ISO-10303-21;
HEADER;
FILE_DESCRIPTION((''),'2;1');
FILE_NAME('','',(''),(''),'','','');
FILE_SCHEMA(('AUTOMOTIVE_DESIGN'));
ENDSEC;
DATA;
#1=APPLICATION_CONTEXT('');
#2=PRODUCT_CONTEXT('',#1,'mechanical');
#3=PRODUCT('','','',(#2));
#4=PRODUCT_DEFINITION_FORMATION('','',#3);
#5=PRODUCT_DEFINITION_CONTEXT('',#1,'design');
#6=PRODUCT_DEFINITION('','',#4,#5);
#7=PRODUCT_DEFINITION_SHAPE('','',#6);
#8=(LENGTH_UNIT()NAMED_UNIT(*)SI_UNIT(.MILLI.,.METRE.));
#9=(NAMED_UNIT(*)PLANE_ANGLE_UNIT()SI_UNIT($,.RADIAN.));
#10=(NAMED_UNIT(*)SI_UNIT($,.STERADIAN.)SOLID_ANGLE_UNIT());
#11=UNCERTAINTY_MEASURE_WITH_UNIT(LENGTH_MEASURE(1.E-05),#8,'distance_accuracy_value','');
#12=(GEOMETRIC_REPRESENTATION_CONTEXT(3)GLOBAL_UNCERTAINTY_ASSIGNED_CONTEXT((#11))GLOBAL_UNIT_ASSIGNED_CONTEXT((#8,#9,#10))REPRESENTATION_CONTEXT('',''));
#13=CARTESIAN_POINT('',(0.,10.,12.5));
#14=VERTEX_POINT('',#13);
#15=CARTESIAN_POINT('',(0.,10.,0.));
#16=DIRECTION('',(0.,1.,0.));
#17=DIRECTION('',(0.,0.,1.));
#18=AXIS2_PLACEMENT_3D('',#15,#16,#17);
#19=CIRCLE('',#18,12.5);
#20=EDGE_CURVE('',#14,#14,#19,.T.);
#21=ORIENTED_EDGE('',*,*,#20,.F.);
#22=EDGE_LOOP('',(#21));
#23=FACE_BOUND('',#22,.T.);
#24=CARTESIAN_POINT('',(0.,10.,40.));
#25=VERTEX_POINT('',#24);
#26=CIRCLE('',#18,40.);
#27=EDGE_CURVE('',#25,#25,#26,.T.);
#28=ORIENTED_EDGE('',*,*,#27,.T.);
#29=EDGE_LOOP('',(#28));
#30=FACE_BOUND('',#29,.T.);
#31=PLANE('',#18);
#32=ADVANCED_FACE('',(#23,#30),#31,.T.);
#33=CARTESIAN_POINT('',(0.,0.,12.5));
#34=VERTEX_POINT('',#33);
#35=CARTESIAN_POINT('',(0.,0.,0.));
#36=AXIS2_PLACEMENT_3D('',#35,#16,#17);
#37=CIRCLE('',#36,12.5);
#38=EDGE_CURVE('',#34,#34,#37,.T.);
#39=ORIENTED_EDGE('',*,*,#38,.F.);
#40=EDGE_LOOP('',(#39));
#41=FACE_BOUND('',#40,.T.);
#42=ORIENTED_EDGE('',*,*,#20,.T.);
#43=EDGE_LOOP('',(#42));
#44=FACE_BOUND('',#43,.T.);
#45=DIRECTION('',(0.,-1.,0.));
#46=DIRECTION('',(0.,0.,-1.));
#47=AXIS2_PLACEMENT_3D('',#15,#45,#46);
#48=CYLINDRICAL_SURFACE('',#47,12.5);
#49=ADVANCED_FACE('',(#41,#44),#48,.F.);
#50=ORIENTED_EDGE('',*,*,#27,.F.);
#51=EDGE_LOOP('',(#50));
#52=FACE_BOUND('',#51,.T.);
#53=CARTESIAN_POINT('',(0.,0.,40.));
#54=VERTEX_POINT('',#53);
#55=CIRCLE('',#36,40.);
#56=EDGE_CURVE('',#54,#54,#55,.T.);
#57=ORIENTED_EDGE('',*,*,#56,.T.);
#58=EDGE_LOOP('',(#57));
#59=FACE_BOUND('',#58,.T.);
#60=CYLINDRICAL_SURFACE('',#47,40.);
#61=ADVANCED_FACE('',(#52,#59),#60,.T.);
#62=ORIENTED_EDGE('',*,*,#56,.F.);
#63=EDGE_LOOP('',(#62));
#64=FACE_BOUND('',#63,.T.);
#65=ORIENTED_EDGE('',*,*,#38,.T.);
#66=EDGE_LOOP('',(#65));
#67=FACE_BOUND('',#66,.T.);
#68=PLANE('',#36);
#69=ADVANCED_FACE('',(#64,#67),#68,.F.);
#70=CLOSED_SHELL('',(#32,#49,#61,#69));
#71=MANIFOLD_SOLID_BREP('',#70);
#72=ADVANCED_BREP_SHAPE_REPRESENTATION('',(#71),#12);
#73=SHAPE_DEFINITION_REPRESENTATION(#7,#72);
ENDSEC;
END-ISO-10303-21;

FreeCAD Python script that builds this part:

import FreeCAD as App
import Part
import Sketcher

V = App.Vector

doc = App.newDocument("Part")
body = doc.addObject("PartDesign::Body", "Body")

# Sketch on XZ plane
sketch1 = body.newObject("Sketcher::SketchObject", "Sketch")
sketch1.AttachmentSupport = (doc.getObject("XZ_Plane"), [""])
sketch1.MapMode = "FlatFace"
sketch1.addGeometry(Part.Circle(V(0, 0, 0), V(0, 0, 1), 40), False)
sketch1.addGeometry(Part.Circle(V(0, 0, 0), V(0, 0, 1), 12.5), False)
sketch1.addConstraint(Sketcher.Constraint("Coincident", 0, 3, -1, 1))
sketch1.addConstraint(Sketcher.Constraint("Coincident", 1, 3, -1, 1))
sketch1.addConstraint(Sketcher.Constraint("Diameter", 0, 80.0))
sketch1.addConstraint(Sketcher.Constraint("Diameter", 1, 25.0))
pad1 = body.newObject("PartDesign::Pad", "Pad")
pad1.Profile = sketch1
pad1.Length = 10
pad1.Reversed = True

doc.recompute()
